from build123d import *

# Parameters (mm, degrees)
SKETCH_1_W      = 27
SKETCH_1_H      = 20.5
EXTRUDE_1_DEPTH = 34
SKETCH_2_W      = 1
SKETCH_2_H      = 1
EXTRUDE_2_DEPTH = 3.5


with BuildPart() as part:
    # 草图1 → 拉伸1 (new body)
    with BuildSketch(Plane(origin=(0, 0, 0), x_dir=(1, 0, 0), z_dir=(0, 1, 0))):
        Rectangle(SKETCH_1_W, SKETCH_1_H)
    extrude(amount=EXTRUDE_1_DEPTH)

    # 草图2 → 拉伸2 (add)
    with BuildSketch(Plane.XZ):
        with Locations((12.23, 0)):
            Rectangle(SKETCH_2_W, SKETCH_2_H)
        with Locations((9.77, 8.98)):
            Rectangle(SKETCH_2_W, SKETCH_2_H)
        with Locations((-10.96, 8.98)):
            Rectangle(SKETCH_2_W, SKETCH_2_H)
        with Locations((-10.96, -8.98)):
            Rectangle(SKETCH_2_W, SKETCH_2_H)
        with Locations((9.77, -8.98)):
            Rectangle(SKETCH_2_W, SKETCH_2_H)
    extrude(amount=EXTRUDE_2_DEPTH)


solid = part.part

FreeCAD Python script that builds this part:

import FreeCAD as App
import Part
import Sketcher
from FreeCAD import Vector
Q = App.Units.Quantity


def add_polygon(sketch, points):
    """Adds a closed chain of lines whose ends are joined by coincident constraints."""
    first, n = sketch.GeometryCount, len(points)
    for a, b in zip(points, points[1:] + points[:1]):
        sketch.addGeometry(Part.LineSegment(App.Vector(*a, 0), App.Vector(*b, 0)), False)
    for i in range(n):
        sketch.addConstraint(Sketcher.Constraint("Coincident", first + i, 2, first + (i + 1) % n, 1))

doc = App.newDocument("Part")
body = doc.addObject("PartDesign::Body", "Body")

# Sketch on XZ plane
sketch1 = doc.addObject("Sketcher::SketchObject", "Sketch")
body.addObject(sketch1)
sketch1.AttachmentSupport = (doc.XZ_Plane, [""])
sketch1.MapMode = "FlatFace"
add_polygon(sketch1, [(-14, -10), (-14, 10), (14, 10), (14, -10)])  # lines 0-3
sketch1.addConstraint(Sketcher.Constraint("Vertical", 0))
sketch1.addConstraint(Sketcher.Constraint("Horizontal", 1))
sketch1.addConstraint(Sketcher.Constraint("Vertical", 2))
sketch1.addConstraint(Sketcher.Constraint("Horizontal", 3))
sketch1.addConstraint(Sketcher.Constraint("Symmetric", 0, 2, 2, 2, -1, 1))
sketch1.addConstraint(Sketcher.Constraint("DistanceX", 1, 1, 1, 2, Q("27 mm")))
sketch1.addConstraint(Sketcher.Constraint("DistanceY", 0, 1, 0, 2, Q("20.5 mm")))
pad1 = doc.addObject("PartDesign::Pad", "Pad")
body.addObject(pad1)
pad1.Profile = sketch1
pad1.Length = 34
pad1.Reversed = True

# Sketch on XZ plane
sketch2 = doc.addObject("Sketcher::SketchObject", "Sketch001")
body.addObject(sketch2)
sketch2.AttachmentSupport = (doc.XZ_Plane, [""])
sketch2.MapMode = "FlatFace"
add_polygon(sketch2, [(11.7, 0.5), (11.7, -0.5), (12.7, -0.5), (12.7, 0.5)])  # lines 0-3
add_polygon(sketch2, [(9.3, 9.5), (9.3, 8.5), (10.3, 8.5), (10.3, 9.5)])  # lines 4-7
add_polygon(sketch2, [(-11.5, 9.5), (-11.5, 8.5), (-10.5, 8.5), (-10.5, 9.5)])  # lines 8-11
add_polygon(sketch2, [(-11.5, -8.5), (-11.5, -9.5), (-10.5, -9.5), (-10.5, -8.5)])  # lines 12-15
add_polygon(sketch2, [(9.3, -8.5), (9.3, -9.5), (10.3, -9.5), (10.3, -8.5)])  # lines 16-19
sketch2.addConstraint(Sketcher.Constraint("Vertical", 0))
sketch2.addConstraint(Sketcher.Constraint("Horizontal", 1))
sketch2.addConstraint(Sketcher.Constraint("Vertical", 2))
sketch2.addConstraint(Sketcher.Constraint("Horizontal", 3))
sketch2.addConstraint(Sketcher.Constraint("Vertical", 4))
sketch2.addConstraint(Sketcher.Constraint("Horizontal", 5))
sketch2.addConstraint(Sketcher.Constraint("Vertical", 6))
sketch2.addConstraint(Sketcher.Constraint("Horizontal", 7))
sketch2.addConstraint(Sketcher.Constraint("Vertical", 8))
sketch2.addConstraint(Sketcher.Constraint("Horizontal", 9))
sketch2.addConstraint(Sketcher.Constraint("Vertical", 10))
sketch2.addConstraint(Sketcher.Constraint("Horizontal", 11))
sketch2.addConstraint(Sketcher.Constraint("Vertical", 12))
sketch2.addConstraint(Sketcher.Constraint("Horizontal", 13))
sketch2.addConstraint(Sketcher.Constraint("Vertical", 14))
sketch2.addConstraint(Sketcher.Constraint("Horizontal", 15))
sketch2.addConstraint(Sketcher.Constraint("Vertical", 16))
sketch2.addConstraint(Sketcher.Constraint("Horizontal", 17))
sketch2.addConstraint(Sketcher.Constraint("Vertical", 18))
sketch2.addConstraint(Sketcher.Constraint("Horizontal", 19))
sketch2.addConstraint(Sketcher.Constraint("Symmetric", 11, 2, 12, 2, -1))
sketch2.addConstraint(Sketcher.Constraint("Symmetric", 9, 2, 14, 2, -1))
sketch2.addConstraint(Sketcher.Constraint("Symmetric", 7, 2, 16, 2, -1))
sketch2.addConstraint(Sketcher.Constraint("Symmetric", 5, 2, 18, 2, -1))
sketch2.addConstraint(Sketcher.Constraint("Horizontal", 5, 2, 8, 2))
sketch2.addConstraint(Sketcher.Constraint("Horizontal", 7, 2, 10, 2))
sketch2.addConstraint(Sketcher.Constraint("Equal", 3, 5))
sketch2.addConstraint(Sketcher.Constraint("Equal", 7, 9))
sketch2.addConstraint(Sketcher.Constraint("Equal", 19, 0))
sketch2.addConstraint(Sketcher.Constraint("Equal", 2, 4))
sketch2.addConstraint(Sketcher.Constraint("DistanceX", 1, 1, 1, 2, Q("1 mm")))
sketch2.addConstraint(Sketcher.Constraint("DistanceY", 0, 2, -1, 1, Q("0.5 mm")))
sketch2.addConstraint(Sketcher.Constraint("DistanceX", -1, 1, 0, 2, Q("11.73 mm")))
sketch2.addConstraint(Sketcher.Constraint("DistanceX", -1, 1, 4, 2, Q("9.27 mm")))
sketch2.addConstraint(Sketcher.Constraint("DistanceY", -1, 1, 4, 2, Q("8.48 mm")))
sketch2.addConstraint(Sketcher.Constraint("DistanceX", 8, 2, -1, 1, Q("11.46 mm")))
pad2 = doc.addObject("PartDesign::Pad", "Pad001")
body.addObject(pad2)
pad2.Profile = sketch2
pad2.Length = 3.5

doc.recompute()
